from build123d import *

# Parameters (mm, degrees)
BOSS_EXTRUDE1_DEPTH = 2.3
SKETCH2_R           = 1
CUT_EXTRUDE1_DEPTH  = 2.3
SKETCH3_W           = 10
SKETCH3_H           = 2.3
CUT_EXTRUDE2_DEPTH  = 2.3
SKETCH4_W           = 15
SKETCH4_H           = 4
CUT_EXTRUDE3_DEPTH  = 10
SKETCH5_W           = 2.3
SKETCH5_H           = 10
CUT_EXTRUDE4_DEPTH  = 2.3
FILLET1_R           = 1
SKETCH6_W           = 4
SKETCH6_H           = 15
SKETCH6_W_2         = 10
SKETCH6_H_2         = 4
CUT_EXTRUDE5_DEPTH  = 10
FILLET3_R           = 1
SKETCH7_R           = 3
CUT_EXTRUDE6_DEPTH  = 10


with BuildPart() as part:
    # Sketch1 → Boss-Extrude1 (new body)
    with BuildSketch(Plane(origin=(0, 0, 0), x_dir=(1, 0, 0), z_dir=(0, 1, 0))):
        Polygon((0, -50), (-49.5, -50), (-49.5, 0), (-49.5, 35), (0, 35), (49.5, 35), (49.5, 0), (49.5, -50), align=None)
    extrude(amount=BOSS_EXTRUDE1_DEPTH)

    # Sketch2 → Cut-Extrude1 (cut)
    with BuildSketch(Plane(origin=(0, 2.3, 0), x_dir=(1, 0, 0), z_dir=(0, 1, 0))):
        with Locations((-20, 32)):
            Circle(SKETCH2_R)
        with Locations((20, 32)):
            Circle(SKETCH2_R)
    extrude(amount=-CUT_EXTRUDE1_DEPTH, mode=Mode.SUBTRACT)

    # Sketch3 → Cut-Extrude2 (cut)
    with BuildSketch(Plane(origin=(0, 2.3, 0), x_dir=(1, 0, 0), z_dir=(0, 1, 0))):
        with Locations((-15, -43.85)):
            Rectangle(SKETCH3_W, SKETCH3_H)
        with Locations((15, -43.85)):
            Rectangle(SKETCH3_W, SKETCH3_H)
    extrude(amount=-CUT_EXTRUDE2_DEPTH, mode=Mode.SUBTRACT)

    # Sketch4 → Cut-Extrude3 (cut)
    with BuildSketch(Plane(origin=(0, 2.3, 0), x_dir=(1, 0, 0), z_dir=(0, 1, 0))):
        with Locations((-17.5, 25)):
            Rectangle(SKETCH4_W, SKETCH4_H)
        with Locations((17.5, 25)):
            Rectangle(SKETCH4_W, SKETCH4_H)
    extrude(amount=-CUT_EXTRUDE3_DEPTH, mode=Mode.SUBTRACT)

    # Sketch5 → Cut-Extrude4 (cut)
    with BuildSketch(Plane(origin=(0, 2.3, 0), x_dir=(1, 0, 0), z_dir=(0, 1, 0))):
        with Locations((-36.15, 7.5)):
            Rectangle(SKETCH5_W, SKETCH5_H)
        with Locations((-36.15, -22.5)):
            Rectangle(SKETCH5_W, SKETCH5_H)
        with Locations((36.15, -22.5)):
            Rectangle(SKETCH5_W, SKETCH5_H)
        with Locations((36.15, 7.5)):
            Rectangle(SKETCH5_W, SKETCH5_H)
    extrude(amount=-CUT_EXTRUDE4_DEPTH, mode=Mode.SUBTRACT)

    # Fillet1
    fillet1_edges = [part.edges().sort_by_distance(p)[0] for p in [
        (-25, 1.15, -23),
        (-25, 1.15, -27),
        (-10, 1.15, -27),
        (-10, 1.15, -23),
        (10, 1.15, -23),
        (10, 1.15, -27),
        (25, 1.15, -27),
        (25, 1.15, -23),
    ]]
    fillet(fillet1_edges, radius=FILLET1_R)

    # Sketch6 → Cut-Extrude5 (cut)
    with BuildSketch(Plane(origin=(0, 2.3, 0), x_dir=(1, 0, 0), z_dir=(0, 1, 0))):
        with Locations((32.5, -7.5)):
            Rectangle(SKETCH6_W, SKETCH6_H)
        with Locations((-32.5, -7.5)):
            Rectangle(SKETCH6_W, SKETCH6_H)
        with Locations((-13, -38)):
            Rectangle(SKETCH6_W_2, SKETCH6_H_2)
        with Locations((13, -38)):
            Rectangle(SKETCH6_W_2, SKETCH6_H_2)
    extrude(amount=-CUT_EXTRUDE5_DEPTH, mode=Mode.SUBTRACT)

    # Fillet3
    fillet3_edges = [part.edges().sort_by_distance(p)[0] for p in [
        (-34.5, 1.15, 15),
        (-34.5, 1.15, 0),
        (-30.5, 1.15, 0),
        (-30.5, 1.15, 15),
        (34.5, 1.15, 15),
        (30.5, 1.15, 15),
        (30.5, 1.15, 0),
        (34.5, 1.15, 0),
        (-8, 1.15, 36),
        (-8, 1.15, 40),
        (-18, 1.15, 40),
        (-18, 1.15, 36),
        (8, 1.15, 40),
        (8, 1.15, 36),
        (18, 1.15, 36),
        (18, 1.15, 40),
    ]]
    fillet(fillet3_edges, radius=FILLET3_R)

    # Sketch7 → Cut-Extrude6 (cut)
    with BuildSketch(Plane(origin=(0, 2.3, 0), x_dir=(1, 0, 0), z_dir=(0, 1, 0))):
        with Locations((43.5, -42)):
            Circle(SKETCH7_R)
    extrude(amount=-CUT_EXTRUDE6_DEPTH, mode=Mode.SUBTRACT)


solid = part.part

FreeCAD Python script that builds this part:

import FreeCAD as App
import Part
import Sketcher
from FreeCAD import Vector
Q = App.Units.Quantity


def edges_at(feature, points):
    """Names of the edges that pass closest to the given points."""
    edges = feature.Shape.Edges
    near = lambda p: min(range(len(edges)), key=lambda i: edges[i].distToShape(Part.Vertex(*p))[0])
    return sorted({f"Edge{near(p) + 1}" for p in points})

doc = App.newDocument("Part")
body = doc.addObject("PartDesign::Body", "Body")

# Sketch on XZ plane
sketch1 = body.newObject("Sketcher::SketchObject", "Sketch")
sketch1.AttachmentSupport = (doc.getObject("XZ_Plane"), [""])
sketch1.MapMode = "FlatFace"
sketch1.addGeometry(Part.LineSegment(Vector(-49.5, 50, 0), Vector(49.5, 50, 0)), False)
sketch1.addGeometry(Part.LineSegment(Vector(49.5, 50, 0), Vector(49.5, -35, 0)), False)
sketch1.addGeometry(Part.LineSegment(Vector(49.5, -35, 0), Vector(-49.5, -35, 0)), False)
sketch1.addGeometry(Part.LineSegment(Vector(-49.5, -35, 0), Vector(-49.5, 50, 0)), False)
sketch1.addConstraint(Sketcher.Constraint("Coincident", 0, 2, 1, 1))
sketch1.addConstraint(Sketcher.Constraint("Coincident", 1, 2, 2, 1))
sketch1.addConstraint(Sketcher.Constraint("Coincident", 2, 2, 3, 1))
sketch1.addConstraint(Sketcher.Constraint("Coincident", 3, 2, 0, 1))
sketch1.addConstraint(Sketcher.Constraint("Horizontal", 0))
sketch1.addConstraint(Sketcher.Constraint("Vertical", 1))
sketch1.addConstraint(Sketcher.Constraint("Horizontal", 2))
sketch1.addConstraint(Sketcher.Constraint("Vertical", 3))
sketch1.addConstraint(Sketcher.Constraint("DistanceX", 0, 1, 0, 2, Q("99 mm")))
sketch1.addConstraint(Sketcher.Constraint("DistanceY", 1, 2, 1, 1, Q("85 mm")))
sketch1.addConstraint(Sketcher.Constraint("DistanceY", -1, 1, 0, 2, Q("50 mm")))
sketch1.addConstraint(Sketcher.Constraint("DistanceX", -1, 1, 0, 2, Q("49.5 mm")))
pad1 = body.newObject("PartDesign::Pad", "Pad")
pad1.Profile = sketch1
pad1.Length = 2.3
pad1.Reversed = True

# Sketch on XZ plane
sketch2 = body.newObject("Sketcher::SketchObject", "Sketch001")
sketch2.AttachmentSupport = (doc.getObject("XZ_Plane"), [""])
sketch2.MapMode = "FlatFace"
sketch2.AttachmentOffset = App.Placement(Vector(0, 0, -2.3), App.Rotation())
sketch2.addGeometry(Part.Circle(Vector(-20, -32, 0), Vector(0, 0, 1), 1), False)
sketch2.addGeometry(Part.Circle(Vector(20, -32, 0), Vector(0, 0, 1), 1), False)
sketch2.addConstraint(Sketcher.Constraint("Equal", 0, 1))
sketch2.addConstraint(Sketcher.Constraint("Symmetric", 0, 3, 1, 3, -2))
sketch2.addConstraint(Sketcher.Constraint("Diameter", 0, Q("2 mm")))
sketch2.addConstraint(Sketcher.Constraint("DistanceX", 0, 3, -1, 1, Q("20 mm")))
sketch2.addConstraint(Sketcher.Constraint("DistanceY", 0, 3, -1, 1, Q("32 mm")))
pocket1 = body.newObject("PartDesign::Pocket", "Pocket")
pocket1.Profile = sketch2
pocket1.Length = 2.3
pocket1.Reversed = True

# Sketch on XZ plane
sketch3 = body.newObject("Sketcher::SketchObject", "Sketch002")
sketch3.AttachmentSupport = (doc.getObject("XZ_Plane"), [""])
sketch3.MapMode = "FlatFace"
sketch3.AttachmentOffset = App.Placement(Vector(0, 0, -2.3), App.Rotation())
sketch3.addGeometry(Part.LineSegment(Vector(-20, 42.7, 0), Vector(-20, 45, 0)), False)
sketch3.addGeometry(Part.LineSegment(Vector(-20, 45, 0), Vector(-10, 45, 0)), False)
sketch3.addGeometry(Part.LineSegment(Vector(-10, 45, 0), Vector(-10, 42.7, 0)), False)
sketch3.addGeometry(Part.LineSegment(Vector(-10, 42.7, 0), Vector(-20, 42.7, 0)), False)
sketch3.addGeometry(Part.LineSegment(Vector(10, 42.7, 0), Vector(10, 45, 0)), False)
sketch3.addGeometry(Part.LineSegment(Vector(10, 45, 0), Vector(20, 45, 0)), False)
sketch3.addGeometry(Part.LineSegment(Vector(20, 45, 0), Vector(20, 42.7, 0)), False)
sketch3.addGeometry(Part.LineSegment(Vector(20, 42.7, 0), Vector(10, 42.7, 0)), False)
sketch3.addConstraint(Sketcher.Constraint("Coincident", 0, 2, 1, 1))
sketch3.addConstraint(Sketcher.Constraint("Coincident", 1, 2, 2, 1))
sketch3.addConstraint(Sketcher.Constraint("Coincident", 2, 2, 3, 1))
sketch3.addConstraint(Sketcher.Constraint("Coincident", 3, 2, 0, 1))
sketch3.addConstraint(Sketcher.Constraint("Coincident", 4, 2, 5, 1))
sketch3.addConstraint(Sketcher.Constraint("Coincident", 5, 2, 6, 1))
sketch3.addConstraint(Sketcher.Constraint("Coincident", 6, 2, 7, 1))
sketch3.addConstraint(Sketcher.Constraint("Coincident", 7, 2, 4, 1))
sketch3.addConstraint(Sketcher.Constraint("Vertical", 0))
sketch3.addConstraint(Sketcher.Constraint("Horizontal", 1))
sketch3.addConstraint(Sketcher.Constraint("Vertical", 2))
sketch3.addConstraint(Sketcher.Constraint("Horizontal", 3))
sketch3.addConstraint(Sketcher.Constraint("Vertical", 4))
sketch3.addConstraint(Sketcher.Constraint("Horizontal", 5))
sketch3.addConstraint(Sketcher.Constraint("Vertical", 6))
sketch3.addConstraint(Sketcher.Constraint("Horizontal", 7))
sketch3.addConstraint(Sketcher.Constraint("Symmetric", 1, 2, 4, 2, -2))
sketch3.addConstraint(Sketcher.Constraint("Symmetric", 3, 2, 6, 2, -2))
sketch3.addConstraint(Sketcher.Constraint("DistanceX", 1, 1, 1, 2, Q("10 mm")))
sketch3.addConstraint(Sketcher.Constraint("DistanceY", 0, 1, 0, 2, Q("2.3 mm")))
sketch3.addConstraint(Sketcher.Constraint("DistanceX", 0, 2, -1, 1, Q("20 mm")))
sketch3.addConstraint(Sketcher.Constraint("DistanceY", -1, 1, 0, 2, Q("45 mm")))
pocket2 = body.newObject("PartDesign::Pocket", "Pocket001")
pocket2.Profile = sketch3
pocket2.Length = 2.3
pocket2.Reversed = True

# Sketch on XZ plane
sketch4 = body.newObject("Sketcher::SketchObject", "Sketch003")
sketch4.AttachmentSupport = (doc.getObject("XZ_Plane"), [""])
sketch4.MapMode = "FlatFace"
sketch4.AttachmentOffset = App.Placement(Vector(0, 0, -2.3), App.Rotation())
sketch4.addGeometry(Part.LineSegment(Vector(-25, -27, 0), Vector(-25, -23, 0)), False)
sketch4.addGeometry(Part.LineSegment(Vector(-25, -23, 0), Vector(-10, -23, 0)), False)
sketch4.addGeometry(Part.LineSegment(Vector(-10, -23, 0), Vector(-10, -27, 0)), False)
sketch4.addGeometry(Part.LineSegment(Vector(-10, -27, 0), Vector(-25, -27, 0)), False)
sketch4.addGeometry(Part.LineSegment(Vector(10, -27, 0), Vector(10, -23, 0)), False)
sketch4.addGeometry(Part.LineSegment(Vector(10, -23, 0), Vector(25, -23, 0)), False)
sketch4.addGeometry(Part.LineSegment(Vector(25, -23, 0), Vector(25, -27, 0)), False)
sketch4.addGeometry(Part.LineSegment(Vector(25, -27, 0), Vector(10, -27, 0)), False)
sketch4.addConstraint(Sketcher.Constraint("Coincident", 0, 2, 1, 1))
sketch4.addConstraint(Sketcher.Constraint("Coincident", 1, 2, 2, 1))
sketch4.addConstraint(Sketcher.Constraint("Coincident", 2, 2, 3, 1))
sketch4.addConstraint(Sketcher.Constraint("Coincident", 3, 2, 0, 1))
sketch4.addConstraint(Sketcher.Constraint("Coincident", 4, 2, 5, 1))
sketch4.addConstraint(Sketcher.Constraint("Coincident", 5, 2, 6, 1))
sketch4.addConstraint(Sketcher.Constraint("Coincident", 6, 2, 7, 1))
sketch4.addConstraint(Sketcher.Constraint("Coincident", 7, 2, 4, 1))
sketch4.addConstraint(Sketcher.Constraint("Vertical", 0))
sketch4.addConstraint(Sketcher.Constraint("Horizontal", 1))
sketch4.addConstraint(Sketcher.Constraint("Vertical", 2))
sketch4.addConstraint(Sketcher.Constraint("Horizontal", 3))
sketch4.addConstraint(Sketcher.Constraint("Vertical", 4))
sketch4.addConstraint(Sketcher.Constraint("Horizontal", 5))
sketch4.addConstraint(Sketcher.Constraint("Vertical", 6))
sketch4.addConstraint(Sketcher.Constraint("Horizontal", 7))
sketch4.addConstraint(Sketcher.Constraint("Symmetric", 1, 2, 4, 2, -2))
sketch4.addConstraint(Sketcher.Constraint("Symmetric", 3, 2, 6, 2, -2))
sketch4.addConstraint(Sketcher.Constraint("DistanceX", 1, 1, 1, 2, Q("15 mm")))
sketch4.addConstraint(Sketcher.Constraint("DistanceY", 0, 1, 0, 2, Q("4 mm")))
sketch4.addConstraint(Sketcher.Constraint("DistanceX", 0, 2, -1, 1, Q("25 mm")))
sketch4.addConstraint(Sketcher.Constraint("DistanceY", 0, 2, -1, 1, Q("23 mm")))
pocket3 = body.newObject("PartDesign::Pocket", "Pocket002")
pocket3.Profile = sketch4
pocket3.Length = 10
pocket3.Reversed = True

# Sketch on XZ plane
sketch5 = body.newObject("Sketcher::SketchObject", "Sketch004")
sketch5.AttachmentSupport = (doc.getObject("XZ_Plane"), [""])
sketch5.MapMode = "FlatFace"
sketch5.AttachmentOffset = App.Placement(Vector(0, 0, -2.3), App.Rotation())
sketch5.addGeometry(Part.LineSegment(Vector(-37.3, -12.5, 0), Vector(-37.3, -2.5, 0)), False)
sketch5.addGeometry(Part.LineSegment(Vector(-37.3, -2.5, 0), Vector(-35, -2.5, 0)), False)
sketch5.addGeometry(Part.LineSegment(Vector(-35, -2.5, 0), Vector(-35, -12.5, 0)), False)
sketch5.addGeometry(Part.LineSegment(Vector(-35, -12.5, 0), Vector(-37.3, -12.5, 0)), False)
sketch5.addGeometry(Part.LineSegment(Vector(-37.3, 17.5, 0), Vector(-37.3, 27.5, 0)), False)
sketch5.addGeometry(Part.LineSegment(Vector(-37.3, 27.5, 0), Vector(-35, 27.5, 0)), False)
sketch5.addGeometry(Part.LineSegment(Vector(-35, 27.5, 0), Vector(-35, 17.5, 0)), False)
sketch5.addGeometry(Part.LineSegment(Vector(-35, 17.5, 0), Vector(-37.3, 17.5, 0)), False)
sketch5.addGeometry(Part.LineSegment(Vector(35, 17.5, 0), Vector(35, 27.5, 0)), False)
sketch5.addGeometry(Part.LineSegment(Vector(35, 27.5, 0), Vector(37.3, 27.5, 0)), False)
sketch5.addGeometry(Part.LineSegment(Vector(37.3, 27.5, 0), Vector(37.3, 17.5, 0)), False)
sketch5.addGeometry(Part.LineSegment(Vector(37.3, 17.5, 0), Vector(35, 17.5, 0)), False)
sketch5.addGeometry(Part.LineSegment(Vector(35, -12.5, 0), Vector(35, -2.5, 0)), False)
sketch5.addGeometry(Part.LineSegment(Vector(35, -2.5, 0), Vector(37.3, -2.5, 0)), False)
sketch5.addGeometry(Part.LineSegment(Vector(37.3, -2.5, 0), Vector(37.3, -12.5, 0)), False)
sketch5.addGeometry(Part.LineSegment(Vector(37.3, -12.5, 0), Vector(35, -12.5, 0)), False)
sketch5.addConstraint(Sketcher.Constraint("Coincident", 0, 2, 1, 1))
sketch5.addConstraint(Sketcher.Constraint("Coincident", 1, 2, 2, 1))
sketch5.addConstraint(Sketcher.Constraint("Coincident", 2, 2, 3, 1))
sketch5.addConstraint(Sketcher.Constraint("Coincident", 3, 2, 0, 1))
sketch5.addConstraint(Sketcher.Constraint("Coincident", 4, 2, 5, 1))
sketch5.addConstraint(Sketcher.Constraint("Coincident", 5, 2, 6, 1))
sketch5.addConstraint(Sketcher.Constraint("Coincident", 6, 2, 7, 1))
sketch5.addConstraint(Sketcher.Constraint("Coincident", 7, 2, 4, 1))
sketch5.addConstraint(Sketcher.Constraint("Coincident", 8, 2, 9, 1))
sketch5.addConstraint(Sketcher.Constraint("Coincident", 9, 2, 10, 1))
sketch5.addConstraint(Sketcher.Constraint("Coincident", 10, 2, 11, 1))
sketch5.addConstraint(Sketcher.Constraint("Coincident", 11, 2, 8, 1))
sketch5.addConstraint(Sketcher.Constraint("Coincident", 12, 2, 13, 1))
sketch5.addConstraint(Sketcher.Constraint("Coincident", 13, 2, 14, 1))
sketch5.addConstraint(Sketcher.Constraint("Coincident", 14, 2, 15, 1))
sketch5.addConstraint(Sketcher.Constraint("Coincident", 15, 2, 12, 1))
sketch5.addConstraint(Sketcher.Constraint("Vertical", 0))
sketch5.addConstraint(Sketcher.Constraint("Horizontal", 1))
sketch5.addConstraint(Sketcher.Constraint("Vertical", 2))
sketch5.addConstraint(Sketcher.Constraint("Horizontal", 3))
sketch5.addConstraint(Sketcher.Constraint("Vertical", 4))
sketch5.addConstraint(Sketcher.Constraint("Horizontal", 5))
sketch5.addConstraint(Sketcher.Constraint("Vertical", 6))
sketch5.addConstraint(Sketcher.Constraint("Horizontal", 7))
sketch5.addConstraint(Sketcher.Constraint("Vertical", 8))
sketch5.addConstraint(Sketcher.Constraint("Horizontal", 9))
sketch5.addConstraint(Sketcher.Constraint("Vertical", 10))
sketch5.addConstraint(Sketcher.Constraint("Horizontal", 11))
sketch5.addConstraint(Sketcher.Constraint("Vertical", 12))
sketch5.addConstraint(Sketcher.Constraint("Horizontal", 13))
sketch5.addConstraint(Sketcher.Constraint("Vertical", 14))
sketch5.addConstraint(Sketcher.Constraint("Horizontal", 15))
sketch5.addConstraint(Sketcher.Constraint("Symmetric", 5, 2, 8, 2, -2))
sketch5.addConstraint(Sketcher.Constraint("Symmetric", 7, 2, 10, 2, -2))
sketch5.addConstraint(Sketcher.Constraint("Symmetric", 1, 2, 12, 2, -2))
sketch5.addConstraint(Sketcher.Constraint("Symmetric", 3, 2, 14, 2, -2))
sketch5.addConstraint(Sketcher.Constraint("Vertical", 3, 2, 4, 2))
sketch5.addConstraint(Sketcher.Constraint("Vertical", 2, 2, 5, 2))
sketch5.addConstraint(Sketcher.Constraint("Equal", 2, 4))
sketch5.addConstraint(Sketcher.Constraint("DistanceY", 0, 1, 0, 2, Q("10 mm")))
sketch5.addConstraint(Sketcher.Constraint("DistanceX", 1, 1, 1, 2, Q("2.3 mm")))
sketch5.addConstraint(Sketcher.Constraint("DistanceX", 1, 2, -1, 1, Q("35 mm")))
sketch5.addConstraint(Sketcher.Constraint("DistanceY", 0, 2, 4, 2, Q("30 mm")))
sketch5.addConstraint(Sketcher.Constraint("DistanceY", 0, 2, -1, 1, Q("2.5 mm")))
pocket4 = body.newObject("PartDesign::Pocket", "Pocket003")
pocket4.Profile = sketch5
pocket4.Length = 2.3
pocket4.Reversed = True
doc.recompute()

fillet = body.newObject("PartDesign::Fillet", "Fillet")
fillet.Base = (pocket4, edges_at(pocket4, [
    (-25, 1.15, -23),
    (-25, 1.15, -27),
    (-10, 1.15, -27),
    (-10, 1.15, -23),
    (10, 1.15, -23),
    (10, 1.15, -27),
    (25, 1.15, -27),
    (25, 1.15, -23),
]))
fillet.Radius = 1

# Sketch on XZ plane
sketch6 = body.newObject("Sketcher::SketchObject", "Sketch005")
sketch6.AttachmentSupport = (doc.getObject("XZ_Plane"), [""])
sketch6.MapMode = "FlatFace"
sketch6.AttachmentOffset = App.Placement(Vector(0, 0, -2.3), App.Rotation())
sketch6.addGeometry(Part.LineSegment(Vector(30.5, 0, 0), Vector(30.5, 15, 0)), False)
sketch6.addGeometry(Part.LineSegment(Vector(30.5, 15, 0), Vector(34.5, 15, 0)), False)
sketch6.addGeometry(Part.LineSegment(Vector(34.5, 15, 0), Vector(34.5, 0, 0)), False)
sketch6.addGeometry(Part.LineSegment(Vector(34.5, 0, 0), Vector(30.5, 0, 0)), False)
sketch6.addGeometry(Part.LineSegment(Vector(-34.5, 0, 0), Vector(-34.5, 15, 0)), False)
sketch6.addGeometry(Part.LineSegment(Vector(-34.5, 15, 0), Vector(-30.5, 15, 0)), False)
sketch6.addGeometry(Part.LineSegment(Vector(-30.5, 15, 0), Vector(-30.5, 0, 0)), False)
sketch6.addGeometry(Part.LineSegment(Vector(-30.5, 0, 0), Vector(-34.5, 0, 0)), False)
sketch6.addGeometry(Part.LineSegment(Vector(-18, 36, 0), Vector(-18, 40, 0)), False)
sketch6.addGeometry(Part.LineSegment(Vector(-18, 40, 0), Vector(-8, 40, 0)), False)
sketch6.addGeometry(Part.LineSegment(Vector(-8, 40, 0), Vector(-8, 36, 0)), False)
sketch6.addGeometry(Part.LineSegment(Vector(-8, 36, 0), Vector(-18, 36, 0)), False)
sketch6.addGeometry(Part.LineSegment(Vector(8, 36, 0), Vector(8, 40, 0)), False)
sketch6.addGeometry(Part.LineSegment(Vector(8, 40, 0), Vector(18, 40, 0)), False)
sketch6.addGeometry(Part.LineSegment(Vector(18, 40, 0), Vector(18, 36, 0)), False)
sketch6.addGeometry(Part.LineSegment(Vector(18, 36, 0), Vector(8, 36, 0)), False)
sketch6.addConstraint(Sketcher.Constraint("Coincident", 0, 2, 1, 1))
sketch6.addConstraint(Sketcher.Constraint("Coincident", 1, 2, 2, 1))
sketch6.addConstraint(Sketcher.Constraint("Coincident", 2, 2, 3, 1))
sketch6.addConstraint(Sketcher.Constraint("Coincident", 3, 2, 0, 1))
sketch6.addConstraint(Sketcher.Constraint("Coincident", 4, 2, 5, 1))
sketch6.addConstraint(Sketcher.Constraint("Coincident", 5, 2, 6, 1))
sketch6.addConstraint(Sketcher.Constraint("Coincident", 6, 2, 7, 1))
sketch6.addConstraint(Sketcher.Constraint("Coincident", 7, 2, 4, 1))
sketch6.addConstraint(Sketcher.Constraint("Coincident", 8, 2, 9, 1))
sketch6.addConstraint(Sketcher.Constraint("Coincident", 9, 2, 10, 1))
sketch6.addConstraint(Sketcher.Constraint("Coincident", 10, 2, 11, 1))
sketch6.addConstraint(Sketcher.Constraint("Coincident", 11, 2, 8, 1))
sketch6.addConstraint(Sketcher.Constraint("Coincident", 12, 2, 13, 1))
sketch6.addConstraint(Sketcher.Constraint("Coincident", 13, 2, 14, 1))
sketch6.addConstraint(Sketcher.Constraint("Coincident", 14, 2, 15, 1))
sketch6.addConstraint(Sketcher.Constraint("Coincident", 15, 2, 12, 1))
sketch6.addConstraint(Sketcher.Constraint("Vertical", 0))
sketch6.addConstraint(Sketcher.Constraint("Horizontal", 1))
sketch6.addConstraint(Sketcher.Constraint("Vertical", 2))
sketch6.addConstraint(Sketcher.Constraint("Horizontal", 3))
sketch6.addConstraint(Sketcher.Constraint("Vertical", 4))
sketch6.addConstraint(Sketcher.Constraint("Horizontal", 5))
sketch6.addConstraint(Sketcher.Constraint("Vertical", 6))
sketch6.addConstraint(Sketcher.Constraint("Horizontal", 7))
sketch6.addConstraint(Sketcher.Constraint("Vertical", 8))
sketch6.addConstraint(Sketcher.Constraint("Horizontal", 9))
sketch6.addConstraint(Sketcher.Constraint("Vertical", 10))
sketch6.addConstraint(Sketcher.Constraint("Horizontal", 11))
sketch6.addConstraint(Sketcher.Constraint("Vertical", 12))
sketch6.addConstraint(Sketcher.Constraint("Horizontal", 13))
sketch6.addConstraint(Sketcher.Constraint("Vertical", 14))
sketch6.addConstraint(Sketcher.Constraint("Horizontal", 15))
sketch6.addConstraint(Sketcher.Constraint("Symmetric", 3, 2, 6, 2, -1, 1))
sketch6.addConstraint(Sketcher.Constraint("Symmetric", 1, 2, 4, 2, -2))
sketch6.addConstraint(Sketcher.Constraint("Symmetric", 9, 2, 12, 2, -2))
sketch6.addConstraint(Sketcher.Constraint("Symmetric", 11, 2, 14, 2, -2))
sketch6.addConstraint(Sketcher.Constraint("PointOnObject", 2, 2, -1))
sketch6.addConstraint(Sketcher.Constraint("Equal", 7, 8))
sketch6.addConstraint(Sketcher.Constraint("DistanceX", 1, 1, 1, 2, Q("4 mm")))
sketch6.addConstraint(Sketcher.Constraint("DistanceX", 9, 1, 9, 2, Q("10 mm")))
sketch6.addConstraint(Sketcher.Constraint("DistanceY", 0, 1, 0, 2, Q("15 mm")))
sketch6.addConstraint(Sketcher.Constraint("DistanceX", 8, 2, -1, 1, Q("18 mm")))
sketch6.addConstraint(Sketcher.Constraint("DistanceY", -1, 1, 8, 2, Q("40 mm")))
sketch6.addConstraint(Sketcher.Constraint("DistanceX", 4, 2, 0, 2, Q("65 mm")))
pocket5 = body.newObject("PartDesign::Pocket", "Pocket004")
pocket5.Profile = sketch6
pocket5.Length = 10
pocket5.Reversed = True
doc.recompute()

fillet2 = body.newObject("PartDesign::Fillet", "Fillet001")
fillet2.Base = (pocket5, edges_at(pocket5, [
    (-34.5, 1.15, 15),
    (-34.5, 1.15, 0),
    (-30.5, 1.15, 0),
    (-30.5, 1.15, 15),
    (34.5, 1.15, 15),
    (30.5, 1.15, 15),
    (30.5, 1.15, 0),
    (34.5, 1.15, 0),
    (-8, 1.15, 36),
    (-8, 1.15, 40),
    (-18, 1.15, 40),
    (-18, 1.15, 36),
    (8, 1.15, 40),
    (8, 1.15, 36),
    (18, 1.15, 36),
    (18, 1.15, 40),
]))
fillet2.Radius = 1

# Sketch on XZ plane
sketch7 = body.newObject("Sketcher::SketchObject", "Sketch006")
sketch7.AttachmentSupport = (doc.getObject("XZ_Plane"), [""])
sketch7.MapMode = "FlatFace"
sketch7.AttachmentOffset = App.Placement(Vector(0, 0, -2.3), App.Rotation())
sketch7.addGeometry(Part.Circle(Vector(43.5, 42, 0), Vector(0, 0, 1), 3), False)
sketch7.addConstraint(Sketcher.Constraint("Diameter", 0, Q("6 mm")))
sketch7.addConstraint(Sketcher.Constraint("DistanceY", -1, 1, 0, 3, Q("42 mm")))
sketch7.addConstraint(Sketcher.Constraint("DistanceX", -1, 1, 0, 3, Q("43.5 mm")))
pocket6 = body.newObject("PartDesign::Pocket", "Pocket005")
pocket6.Profile = sketch7
pocket6.Length = 10
pocket6.Reversed = True

doc.recompute()
